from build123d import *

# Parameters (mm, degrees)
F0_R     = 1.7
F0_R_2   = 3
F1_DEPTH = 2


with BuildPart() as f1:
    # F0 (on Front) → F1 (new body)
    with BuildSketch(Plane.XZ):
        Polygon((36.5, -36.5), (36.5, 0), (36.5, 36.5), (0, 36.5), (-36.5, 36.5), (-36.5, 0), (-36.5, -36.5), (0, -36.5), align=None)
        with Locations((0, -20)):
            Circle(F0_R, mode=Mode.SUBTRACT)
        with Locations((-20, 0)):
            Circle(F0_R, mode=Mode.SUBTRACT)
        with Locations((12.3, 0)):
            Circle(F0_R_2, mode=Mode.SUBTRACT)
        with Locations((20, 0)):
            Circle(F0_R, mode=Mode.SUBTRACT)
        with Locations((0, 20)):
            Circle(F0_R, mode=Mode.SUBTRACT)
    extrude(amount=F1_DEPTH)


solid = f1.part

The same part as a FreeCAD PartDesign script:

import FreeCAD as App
import Part
import Sketcher

doc = App.newDocument("Part")
params = doc.addObject("Spreadsheet::Sheet", "Params")
for row, (alias, value) in enumerate([
    ("sketch1_diameter", "6 mm"),
    ("sketch1_diameter2", "3.4 mm"),
    ("sketch1_width", "73 mm"),
    ("pad1_length", "2 mm"),
], start=1):
    params.set(f"A{row}", alias)
    params.set(f"B{row}", "=" + value)
    params.setAlias(f"B{row}", alias)

body = doc.addObject("PartDesign::Body", "Body")

# Sketch on XZ plane
sketch1 = body.newObject("Sketcher::SketchObject", "Sketch")
sketch1.AttachmentSupport = (doc.getObject("XZ_Plane"), [""])
sketch1.MapMode = "FlatFace"
sketch1.addGeometry(Part.LineSegment(App.Vector(36.5, -36.5, 0), App.Vector(36.5, 36.5, 0)), False)
sketch1.addGeometry(Part.LineSegment(App.Vector(36.5, 36.5, 0), App.Vector(-36.5, 36.5, 0)), False)
sketch1.addGeometry(Part.LineSegment(App.Vector(-36.5, 36.5, 0), App.Vector(-36.5, -36.5, 0)), False)
sketch1.addGeometry(Part.LineSegment(App.Vector(-36.5, -36.5, 0), App.Vector(36.5, -36.5, 0)), False)
sketch1.addGeometry(Part.Circle(App.Vector(0, -20, 0), App.Vector(0, 0, 1), 1.7), False)
sketch1.addGeometry(Part.Circle(App.Vector(-20, 0, 0), App.Vector(0, 0, 1), 1.7), False)
sketch1.addGeometry(Part.Circle(App.Vector(12.3, 0, 0), App.Vector(0, 0, 1), 3), False)
sketch1.addGeometry(Part.Circle(App.Vector(20, 0, 0), App.Vector(0, 0, 1), 1.7), False)
sketch1.addGeometry(Part.Circle(App.Vector(0, 20, 0), App.Vector(0, 0, 1), 1.7), False)
sketch1.addConstraint(Sketcher.Constraint("Coincident", 0, 2, 1, 1))
sketch1.addConstraint(Sketcher.Constraint("Coincident", 1, 2, 2, 1))
sketch1.addConstraint(Sketcher.Constraint("Coincident", 2, 2, 3, 1))
sketch1.addConstraint(Sketcher.Constraint("Coincident", 3, 2, 0, 1))
sketch1.addConstraint(Sketcher.Constraint("Vertical", 0))
sketch1.addConstraint(Sketcher.Constraint("Horizontal", 1))
sketch1.addConstraint(Sketcher.Constraint("Vertical", 2))
sketch1.addConstraint(Sketcher.Constraint("Horizontal", 3))
sketch1.addConstraint(Sketcher.Constraint("Equal", 4, 5))
sketch1.addConstraint(Sketcher.Constraint("Equal", 5, 7))
sketch1.addConstraint(Sketcher.Constraint("Equal", 7, 8))
sketch1.addConstraint(Sketcher.Constraint("Symmetric", 5, 3, 7, 3, -1, 1))
sketch1.addConstraint(Sketcher.Constraint("Symmetric", 4, 3, 8, 3, -1, 1))
sketch1.addConstraint(Sketcher.Constraint("Symmetric", 0, 2, 2, 2, -1, 1))
sketch1.addConstraint(Sketcher.Constraint("PointOnObject", 4, 3, -2))
sketch1.addConstraint(Sketcher.Constraint("PointOnObject", 5, 3, -1))
sketch1.addConstraint(Sketcher.Constraint("PointOnObject", 6, 3, -1))
sketch1.addConstraint(Sketcher.Constraint("Equal", 3, 0))
sketch1.addConstraint(Sketcher.Constraint("Diameter", 6, 6.0))
sketch1.addConstraint(Sketcher.Constraint("Diameter", 4, 3.4))
sketch1.addConstraint(Sketcher.Constraint("DistanceX", 1, 2, 1, 1, 73.0))
sketch1.addConstraint(Sketcher.Constraint("DistanceY", 4, 3, -1, 1, 20.0))
sketch1.addConstraint(Sketcher.Constraint("DistanceX", 5, 3, -1, 1, 20.0))
sketch1.addConstraint(Sketcher.Constraint("DistanceX", -1, 1, 6, 3, 12.3))
sketch1.setExpression("Constraints[18]", "Params.sketch1_diameter")
sketch1.setExpression("Constraints[19]", "Params.sketch1_diameter2")
sketch1.setExpression("Constraints[20]", "Params.sketch1_width")
pad1 = body.newObject("PartDesign::Pad", "Pad")
pad1.Profile = sketch1
pad1.setExpression("Length", "Params.pad1_length")

doc.recompute()
